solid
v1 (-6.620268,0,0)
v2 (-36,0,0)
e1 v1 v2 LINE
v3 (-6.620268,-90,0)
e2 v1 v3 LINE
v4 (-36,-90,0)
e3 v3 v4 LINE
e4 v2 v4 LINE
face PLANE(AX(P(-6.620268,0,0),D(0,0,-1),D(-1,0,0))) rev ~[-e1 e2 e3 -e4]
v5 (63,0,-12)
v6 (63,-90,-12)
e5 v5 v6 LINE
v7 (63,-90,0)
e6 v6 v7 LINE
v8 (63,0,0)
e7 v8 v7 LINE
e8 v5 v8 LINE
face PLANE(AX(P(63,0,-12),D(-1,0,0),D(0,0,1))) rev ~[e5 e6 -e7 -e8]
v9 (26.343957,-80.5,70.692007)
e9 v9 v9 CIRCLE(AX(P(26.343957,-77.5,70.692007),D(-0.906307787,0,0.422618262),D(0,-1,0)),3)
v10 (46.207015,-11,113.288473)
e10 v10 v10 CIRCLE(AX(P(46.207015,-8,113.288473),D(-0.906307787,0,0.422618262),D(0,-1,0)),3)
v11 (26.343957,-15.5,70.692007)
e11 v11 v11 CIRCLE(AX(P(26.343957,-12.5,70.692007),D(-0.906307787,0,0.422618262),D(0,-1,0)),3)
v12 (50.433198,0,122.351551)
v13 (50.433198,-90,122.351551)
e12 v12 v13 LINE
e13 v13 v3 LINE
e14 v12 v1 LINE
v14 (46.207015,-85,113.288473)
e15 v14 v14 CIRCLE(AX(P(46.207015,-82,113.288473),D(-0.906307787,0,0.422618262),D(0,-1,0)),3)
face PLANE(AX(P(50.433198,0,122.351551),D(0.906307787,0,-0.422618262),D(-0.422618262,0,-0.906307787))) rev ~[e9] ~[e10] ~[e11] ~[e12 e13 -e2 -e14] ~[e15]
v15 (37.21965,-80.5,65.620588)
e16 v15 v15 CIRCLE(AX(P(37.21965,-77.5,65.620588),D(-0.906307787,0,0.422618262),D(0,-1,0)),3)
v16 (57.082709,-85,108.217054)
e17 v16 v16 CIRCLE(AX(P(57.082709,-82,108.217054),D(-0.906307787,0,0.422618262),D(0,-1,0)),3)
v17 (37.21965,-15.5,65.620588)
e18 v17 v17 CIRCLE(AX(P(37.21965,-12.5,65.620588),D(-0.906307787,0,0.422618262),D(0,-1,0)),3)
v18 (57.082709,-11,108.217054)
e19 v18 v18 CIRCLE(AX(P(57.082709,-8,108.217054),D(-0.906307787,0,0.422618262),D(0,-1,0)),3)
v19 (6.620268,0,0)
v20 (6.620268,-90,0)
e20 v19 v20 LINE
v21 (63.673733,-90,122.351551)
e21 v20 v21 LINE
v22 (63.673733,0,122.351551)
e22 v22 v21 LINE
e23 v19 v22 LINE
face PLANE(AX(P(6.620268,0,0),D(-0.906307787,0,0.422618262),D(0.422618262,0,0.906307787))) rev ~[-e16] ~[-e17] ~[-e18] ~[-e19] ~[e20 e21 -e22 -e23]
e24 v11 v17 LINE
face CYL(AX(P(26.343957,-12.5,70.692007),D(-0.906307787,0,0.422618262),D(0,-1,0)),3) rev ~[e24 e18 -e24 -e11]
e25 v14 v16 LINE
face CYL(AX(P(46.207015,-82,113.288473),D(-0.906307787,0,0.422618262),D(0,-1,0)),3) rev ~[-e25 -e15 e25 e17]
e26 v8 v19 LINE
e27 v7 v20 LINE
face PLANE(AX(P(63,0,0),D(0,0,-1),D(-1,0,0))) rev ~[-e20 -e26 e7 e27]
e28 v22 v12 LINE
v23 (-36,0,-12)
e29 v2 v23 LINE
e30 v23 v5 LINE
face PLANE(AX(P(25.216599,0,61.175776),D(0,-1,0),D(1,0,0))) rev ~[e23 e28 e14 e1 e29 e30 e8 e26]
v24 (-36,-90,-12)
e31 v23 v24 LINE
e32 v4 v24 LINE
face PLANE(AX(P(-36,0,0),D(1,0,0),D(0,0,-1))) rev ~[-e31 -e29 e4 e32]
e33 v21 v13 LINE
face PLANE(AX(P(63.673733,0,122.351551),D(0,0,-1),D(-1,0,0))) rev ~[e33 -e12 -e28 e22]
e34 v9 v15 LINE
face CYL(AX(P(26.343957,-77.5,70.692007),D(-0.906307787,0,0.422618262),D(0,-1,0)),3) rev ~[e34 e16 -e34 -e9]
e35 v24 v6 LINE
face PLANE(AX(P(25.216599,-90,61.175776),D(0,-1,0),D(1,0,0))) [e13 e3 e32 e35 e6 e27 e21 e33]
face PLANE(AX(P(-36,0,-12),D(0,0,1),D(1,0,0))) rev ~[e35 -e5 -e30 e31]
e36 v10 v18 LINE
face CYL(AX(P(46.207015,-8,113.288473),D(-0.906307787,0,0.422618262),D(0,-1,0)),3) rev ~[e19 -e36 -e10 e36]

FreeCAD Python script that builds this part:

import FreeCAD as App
import Part
import Sketcher
Q = App.Units.Quantity

doc = App.newDocument("Part")
params = doc.addObject("Spreadsheet::Sheet", "Params")
for row, (alias, value) in enumerate([
    ("sketch1_width", "99 mm"),
    ("sketch1_height", "12 mm"),
    ("sketch1_length", "135 mm"),
    ("pad1_length", "90 mm"),
    ("sketch2_diameter", "6 mm"),
    ("sketch3_diameter", "6 mm"),
], start=1):
    params.set(f"A{row}", alias)
    params.set(f"B{row}", "=" + value)
    params.setAlias(f"B{row}", alias)

body = doc.addObject("PartDesign::Body", "Body")

# Sketch on XZ plane
sketch1 = body.newObject("Sketcher::SketchObject", "Sketch")
sketch1.AttachmentSupport = (doc.getObject("XZ_Plane"), [""])
sketch1.MapMode = "FlatFace"
sketch1.addGeometry(Part.LineSegment(App.Vector(63, -12, 0), App.Vector(63, 0, 0)), False)
sketch1.addGeometry(Part.LineSegment(App.Vector(63, 0, 0), App.Vector(7, 0, 0)), False)
sketch1.addGeometry(Part.LineSegment(App.Vector(7, 0, 0), App.Vector(64, 122, 0)), False)
sketch1.addGeometry(Part.LineSegment(App.Vector(64, 122, 0), App.Vector(50, 122, 0)), False)
sketch1.addGeometry(Part.LineSegment(App.Vector(50, 122, 0), App.Vector(-7, 0, 0)), False)
sketch1.addGeometry(Part.LineSegment(App.Vector(-7, 0, 0), App.Vector(-36, 0, 0)), False)
sketch1.addGeometry(Part.LineSegment(App.Vector(-36, 0, 0), App.Vector(-36, -12, 0)), False)
sketch1.addGeometry(Part.LineSegment(App.Vector(-36, -12, 0), App.Vector(63, -12, 0)), False)
sketch1.addConstraint(Sketcher.Constraint("Coincident", 0, 2, 1, 1))
sketch1.addConstraint(Sketcher.Constraint("Coincident", 1, 2, 2, 1))
sketch1.addConstraint(Sketcher.Constraint("Coincident", 2, 2, 3, 1))
sketch1.addConstraint(Sketcher.Constraint("Coincident", 3, 2, 4, 1))
sketch1.addConstraint(Sketcher.Constraint("Coincident", 4, 2, 5, 1))
sketch1.addConstraint(Sketcher.Constraint("Coincident", 5, 2, 6, 1))
sketch1.addConstraint(Sketcher.Constraint("Coincident", 6, 2, 7, 1))
sketch1.addConstraint(Sketcher.Constraint("Coincident", 7, 2, 0, 1))
sketch1.addConstraint(Sketcher.Constraint("Vertical", 0))
sketch1.addConstraint(Sketcher.Constraint("Horizontal", 1))
sketch1.addConstraint(Sketcher.Constraint("Horizontal", 3))
sketch1.addConstraint(Sketcher.Constraint("Horizontal", 5))
sketch1.addConstraint(Sketcher.Constraint("Vertical", 6))
sketch1.addConstraint(Sketcher.Constraint("Horizontal", 7))
sketch1.addConstraint(Sketcher.Constraint("Symmetric", 1, 2, 4, 2, -1, 1))
sketch1.addConstraint(Sketcher.Constraint("PointOnObject", 0, 2, -1))
sketch1.addConstraint(Sketcher.Constraint("Parallel", 2, 4))
sketch1.addConstraint(Sketcher.Constraint("DistanceX", 7, 1, 7, 2, 99.0))
sketch1.addConstraint(Sketcher.Constraint("DistanceY", 0, 1, 0, 2, 12.0))
sketch1.addConstraint(Sketcher.Constraint("Angle", 2, Q("65 deg")))
sketch1.addConstraint(Sketcher.Constraint("Distance", 2, 135.0))
sketch1.addConstraint(Sketcher.Constraint("DistanceX", -1, 1, 0, 2, 63.0))
sketch1.addConstraint(Sketcher.Constraint("DistanceX", 4, 2, 2, 2, 70.294))
sketch1.setExpression("Constraints[17]", "Params.sketch1_width")
sketch1.setExpression("Constraints[18]", "Params.sketch1_height")
sketch1.setExpression("Constraints[20]", "Params.sketch1_length")
pad1 = body.newObject("PartDesign::Pad", "Pad")
pad1.Profile = sketch1
pad1.setExpression("Length", "Params.pad1_length")

# Sketch on an angled plane
sketch2 = body.newObject("Sketcher::SketchObject", "Sketch001")
sketch2.Placement = App.Placement(App.Vector(-5.437847, 0, 2.53571), App.Rotation(App.Vector(0, -1, 0), App.Vector(0.422618262, 0, 0.906307787), App.Vector(-0.906307787, 0, 0.422618262), "ZXY"))
sketch2.addGeometry(Part.Circle(App.Vector(8, 122.2, 0), App.Vector(0, 0, 1), 3), False)
sketch2.addGeometry(Part.Circle(App.Vector(82, 122.2, 0), App.Vector(0, 0, 1), 3), False)
sketch2.addConstraint(Sketcher.Constraint("Equal", 0, 1))
sketch2.addConstraint(Sketcher.Constraint("Horizontal", 0, 3, 1, 3))
sketch2.addConstraint(Sketcher.Constraint("Diameter", 0, 6.0))
sketch2.addConstraint(Sketcher.Constraint("DistanceX", -1, 1, 0, 3, 8.0))
sketch2.addConstraint(Sketcher.Constraint("DistanceX", -1, 1, 1, 3, 82.0))
sketch2.addConstraint(Sketcher.Constraint("DistanceY", -1, 1, 0, 3, 122.202154))
sketch2.setExpression("Constraints[2]", "Params.sketch2_diameter")
pocket1 = body.newObject("PartDesign::Pocket", "Pocket")
pocket1.Profile = sketch2
pocket1.Type = "ThroughAll"

# Sketch on an angled plane
sketch3 = body.newObject("Sketcher::SketchObject", "Sketch002")
sketch3.Placement = App.Placement(App.Vector(-5.437847, 0, 2.53571), App.Rotation(App.Vector(0, -1, 0), App.Vector(0.422618262, 0, 0.906307787), App.Vector(-0.906307787, 0, 0.422618262), "ZXY"))
sketch3.addGeometry(Part.Circle(App.Vector(12.5, 75.2, 0), App.Vector(0, 0, 1), 3), False)
sketch3.addGeometry(Part.Circle(App.Vector(77.5, 75.2, 0), App.Vector(0, 0, 1), 3), False)
sketch3.addConstraint(Sketcher.Constraint("Equal", 0, 1))
sketch3.addConstraint(Sketcher.Constraint("Horizontal", 0, 3, 1, 3))
sketch3.addConstraint(Sketcher.Constraint("Diameter", 0, 6.0))
sketch3.addConstraint(Sketcher.Constraint("DistanceX", 0, 3, 1, 3, 65.0))
sketch3.addConstraint(Sketcher.Constraint("DistanceX", -1, 1, 0, 3, 12.5))
sketch3.addConstraint(Sketcher.Constraint("DistanceY", -1, 1, 0, 3, 75.202154))
sketch3.setExpression("Constraints[2]", "Params.sketch3_diameter")
pocket2 = body.newObject("PartDesign::Pocket", "Pocket001")
pocket2.Profile = sketch3
pocket2.Type = "ThroughAll"

doc.recompute()
